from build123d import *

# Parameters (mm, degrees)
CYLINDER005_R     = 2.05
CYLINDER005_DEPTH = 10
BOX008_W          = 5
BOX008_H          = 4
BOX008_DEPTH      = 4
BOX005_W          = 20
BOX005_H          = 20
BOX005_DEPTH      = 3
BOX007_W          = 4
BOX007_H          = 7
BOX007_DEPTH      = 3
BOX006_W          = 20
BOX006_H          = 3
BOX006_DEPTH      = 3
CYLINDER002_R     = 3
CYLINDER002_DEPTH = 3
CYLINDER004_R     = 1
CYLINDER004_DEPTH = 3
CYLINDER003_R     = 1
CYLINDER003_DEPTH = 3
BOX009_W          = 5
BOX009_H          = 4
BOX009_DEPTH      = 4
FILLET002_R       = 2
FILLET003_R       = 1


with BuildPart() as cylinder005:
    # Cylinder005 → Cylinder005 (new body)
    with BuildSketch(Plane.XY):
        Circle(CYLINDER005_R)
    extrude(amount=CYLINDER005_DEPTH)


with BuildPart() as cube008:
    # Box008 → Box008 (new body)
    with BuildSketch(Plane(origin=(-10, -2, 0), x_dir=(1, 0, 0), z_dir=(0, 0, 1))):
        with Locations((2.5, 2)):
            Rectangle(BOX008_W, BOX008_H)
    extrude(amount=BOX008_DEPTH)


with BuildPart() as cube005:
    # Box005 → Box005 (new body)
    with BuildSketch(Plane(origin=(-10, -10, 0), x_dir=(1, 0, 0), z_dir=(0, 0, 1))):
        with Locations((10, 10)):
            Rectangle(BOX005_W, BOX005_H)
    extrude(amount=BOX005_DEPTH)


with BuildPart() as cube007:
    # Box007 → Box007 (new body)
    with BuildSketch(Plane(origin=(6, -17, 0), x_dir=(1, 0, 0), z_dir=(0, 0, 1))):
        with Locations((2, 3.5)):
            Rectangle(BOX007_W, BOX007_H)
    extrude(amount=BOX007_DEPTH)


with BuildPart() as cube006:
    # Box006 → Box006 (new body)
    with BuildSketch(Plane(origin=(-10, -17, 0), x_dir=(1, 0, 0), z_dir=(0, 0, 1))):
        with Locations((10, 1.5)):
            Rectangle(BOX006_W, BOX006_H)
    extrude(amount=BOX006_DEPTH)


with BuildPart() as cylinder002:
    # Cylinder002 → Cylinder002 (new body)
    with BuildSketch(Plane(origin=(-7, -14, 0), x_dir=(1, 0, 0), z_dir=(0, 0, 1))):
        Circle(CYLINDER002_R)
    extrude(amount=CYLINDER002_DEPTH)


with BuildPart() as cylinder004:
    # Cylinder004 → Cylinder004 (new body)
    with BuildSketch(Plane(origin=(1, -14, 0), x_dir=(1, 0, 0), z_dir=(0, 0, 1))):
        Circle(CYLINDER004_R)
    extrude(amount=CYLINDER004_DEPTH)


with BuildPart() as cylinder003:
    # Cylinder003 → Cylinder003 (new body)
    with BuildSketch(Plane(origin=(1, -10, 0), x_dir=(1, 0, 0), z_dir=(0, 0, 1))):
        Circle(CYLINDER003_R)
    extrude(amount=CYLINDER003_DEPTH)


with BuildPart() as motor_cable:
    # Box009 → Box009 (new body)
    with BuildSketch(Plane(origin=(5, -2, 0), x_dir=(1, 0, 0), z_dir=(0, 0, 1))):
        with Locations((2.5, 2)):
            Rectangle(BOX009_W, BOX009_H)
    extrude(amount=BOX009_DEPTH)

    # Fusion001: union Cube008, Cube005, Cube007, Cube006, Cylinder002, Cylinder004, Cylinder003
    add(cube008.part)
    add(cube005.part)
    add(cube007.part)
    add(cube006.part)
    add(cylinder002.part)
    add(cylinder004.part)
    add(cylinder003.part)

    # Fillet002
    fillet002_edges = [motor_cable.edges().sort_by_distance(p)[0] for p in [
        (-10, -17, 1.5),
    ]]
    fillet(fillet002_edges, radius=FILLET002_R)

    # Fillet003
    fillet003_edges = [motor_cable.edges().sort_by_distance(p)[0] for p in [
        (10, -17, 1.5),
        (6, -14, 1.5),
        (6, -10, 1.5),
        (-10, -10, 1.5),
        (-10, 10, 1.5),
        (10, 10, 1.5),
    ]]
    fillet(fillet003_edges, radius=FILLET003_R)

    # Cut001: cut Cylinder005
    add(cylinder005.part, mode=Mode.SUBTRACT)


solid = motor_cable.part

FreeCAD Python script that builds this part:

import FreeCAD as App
import Part
import Sketcher
Q = App.Units.Quantity


def edges_at(feature, points):
    """Names of the edges that pass closest to the given points."""
    edges = feature.Shape.Edges
    near = lambda p: min(range(len(edges)), key=lambda i: edges[i].distToShape(Part.Vertex(*p))[0])
    return sorted({f"Edge{near(p) + 1}" for p in points})


def add_polygon(sketch, points):
    """Adds a closed chain of lines whose ends are joined by coincident constraints."""
    first, n = sketch.GeometryCount, len(points)
    for a, b in zip(points, points[1:] + points[:1]):
        sketch.addGeometry(Part.LineSegment(App.Vector(*a, 0), App.Vector(*b, 0)), False)
    for i in range(n):
        sketch.addConstraint(Sketcher.Constraint("Coincident", first + i, 2, first + (i + 1) % n, 1))

doc = App.newDocument("Part")
body = doc.addObject("PartDesign::Body", "Body")

sketch1 = body.newObject("Sketcher::SketchObject", "Sketch")
sketch1.AttachmentSupport = (doc.getObject("XY_Plane"), [""])
sketch1.MapMode = "FlatFace"
sketch1.addGeometry(Part.Circle(App.Vector(0, 0, 0), App.Vector(0, 0, 1), 2), False)
sketch1.addConstraint([
    Sketcher.Constraint("Coincident", 0, 3, -1, 1),
    Sketcher.Constraint("Diameter", 0, Q("4.1 mm")),
])
pad1 = body.newObject("PartDesign::Pad", "Pad")
pad1.Profile = sketch1
pad1.Length = 10
body2 = doc.addObject("PartDesign::Body", "Body001")

sketch2 = body2.newObject("Sketcher::SketchObject", "Sketch001")
sketch2.AttachmentSupport = (doc.getObject("XY_Plane001"), [""])
sketch2.MapMode = "FlatFace"
add_polygon(sketch2, [(-10, 2), (-10, -2), (-5, -2), (-5, 2)])
sketch2.addConstraint([
    Sketcher.Constraint("Vertical", 0),
    Sketcher.Constraint("Horizontal", 1),
    Sketcher.Constraint("Vertical", 2),
    Sketcher.Constraint("Horizontal", 3),
    Sketcher.Constraint("DistanceX", 1, 1, 1, 2, Q("5 mm")),
    Sketcher.Constraint("DistanceY", 0, 2, 0, 1, Q("4 mm")),
    Sketcher.Constraint("DistanceX", 0, 2, -1, 1, Q("10 mm")),
    Sketcher.Constraint("DistanceY", 0, 2, -1, 1, Q("2 mm")),
])
pad2 = body2.newObject("PartDesign::Pad", "Pad001")
pad2.Profile = sketch2
pad2.Length = 4
body3 = doc.addObject("PartDesign::Body", "Body002")

sketch3 = body3.newObject("Sketcher::SketchObject", "Sketch002")
sketch3.AttachmentSupport = (doc.getObject("XY_Plane002"), [""])
sketch3.MapMode = "FlatFace"
add_polygon(sketch3, [(-10, 10), (-10, -10), (10, -10), (10, 10)])
sketch3.addConstraint([
    Sketcher.Constraint("Vertical", 0),
    Sketcher.Constraint("Horizontal", 1),
    Sketcher.Constraint("Vertical", 2),
    Sketcher.Constraint("Horizontal", 3),
    Sketcher.Constraint("Symmetric", 0, 2, 2, 2, -1, 1),
    Sketcher.Constraint("Equal", 3, 0),
    Sketcher.Constraint("DistanceX", 1, 1, 1, 2, Q("20 mm")),
])
pad3 = body3.newObject("PartDesign::Pad", "Pad002")
pad3.Profile = sketch3
pad3.Length = 3
body4 = doc.addObject("PartDesign::Body", "Body003")

sketch4 = body4.newObject("Sketcher::SketchObject", "Sketch003")
sketch4.AttachmentSupport = (doc.getObject("XY_Plane003"), [""])
sketch4.MapMode = "FlatFace"
add_polygon(sketch4, [(6, -10), (6, -17), (10, -17), (10, -10)])
sketch4.addConstraint([
    Sketcher.Constraint("Vertical", 0),
    Sketcher.Constraint("Horizontal", 1),
    Sketcher.Constraint("Vertical", 2),
    Sketcher.Constraint("Horizontal", 3),
    Sketcher.Constraint("DistanceX", 1, 1, 1, 2, Q("4 mm")),
    Sketcher.Constraint("DistanceY", 0, 2, 0, 1, Q("7 mm")),
    Sketcher.Constraint("DistanceX", -1, 1, 0, 2, Q("6 mm")),
    Sketcher.Constraint("DistanceY", 0, 2, -1, 1, Q("17 mm")),
])
pad4 = body4.newObject("PartDesign::Pad", "Pad003")
pad4.Profile = sketch4
pad4.Length = 3
body5 = doc.addObject("PartDesign::Body", "Body004")

sketch5 = body5.newObject("Sketcher::SketchObject", "Sketch004")
sketch5.AttachmentSupport = (doc.getObject("XY_Plane004"), [""])
sketch5.MapMode = "FlatFace"
add_polygon(sketch5, [(-10, -14), (-10, -17), (10, -17), (10, -14)])
sketch5.addConstraint([
    Sketcher.Constraint("Vertical", 0),
    Sketcher.Constraint("Horizontal", 1),
    Sketcher.Constraint("Vertical", 2),
    Sketcher.Constraint("Horizontal", 3),
    Sketcher.Constraint("DistanceX", 1, 1, 1, 2, Q("20 mm")),
    Sketcher.Constraint("DistanceY", 0, 2, 0, 1, Q("3 mm")),
    Sketcher.Constraint("DistanceX", 0, 2, -1, 1, Q("10 mm")),
    Sketcher.Constraint("DistanceY", 0, 2, -1, 1, Q("17 mm")),
])
pad5 = body5.newObject("PartDesign::Pad", "Pad004")
pad5.Profile = sketch5
pad5.Length = 3
body6 = doc.addObject("PartDesign::Body", "Body005")

sketch6 = body6.newObject("Sketcher::SketchObject", "Sketch005")
sketch6.AttachmentSupport = (doc.getObject("XY_Plane005"), [""])
sketch6.MapMode = "FlatFace"
sketch6.addGeometry(Part.Circle(App.Vector(-7, -14, 0), App.Vector(0, 0, 1), 3), False)
sketch6.addConstraint([
    Sketcher.Constraint("Diameter", 0, Q("6 mm")),
    Sketcher.Constraint("DistanceX", 0, 3, -1, 1, Q("7 mm")),
    Sketcher.Constraint("DistanceY", 0, 3, -1, 1, Q("14 mm")),
])
pad6 = body6.newObject("PartDesign::Pad", "Pad005")
pad6.Profile = sketch6
pad6.Length = 3
body7 = doc.addObject("PartDesign::Body", "Body006")

sketch7 = body7.newObject("Sketcher::SketchObject", "Sketch006")
sketch7.AttachmentSupport = (doc.getObject("XY_Plane006"), [""])
sketch7.MapMode = "FlatFace"
sketch7.addGeometry(Part.Circle(App.Vector(1, -14, 0), App.Vector(0, 0, 1), 1), False)
sketch7.addConstraint([
    Sketcher.Constraint("Diameter", 0, Q("2 mm")),
    Sketcher.Constraint("DistanceX", -1, 1, 0, 3, Q("1 mm")),
    Sketcher.Constraint("DistanceY", 0, 3, -1, 1, Q("14 mm")),
])
pad7 = body7.newObject("PartDesign::Pad", "Pad006")
pad7.Profile = sketch7
pad7.Length = 3
body8 = doc.addObject("PartDesign::Body", "Body007")

sketch8 = body8.newObject("Sketcher::SketchObject", "Sketch007")
sketch8.AttachmentSupport = (doc.getObject("XY_Plane007"), [""])
sketch8.MapMode = "FlatFace"
sketch8.addGeometry(Part.Circle(App.Vector(1, -10, 0), App.Vector(0, 0, 1), 1), False)
sketch8.addConstraint([
    Sketcher.Constraint("Diameter", 0, Q("2 mm")),
    Sketcher.Constraint("DistanceX", -1, 1, 0, 3, Q("1 mm")),
    Sketcher.Constraint("DistanceY", 0, 3, -1, 1, Q("10 mm")),
])
pad8 = body8.newObject("PartDesign::Pad", "Pad007")
pad8.Profile = sketch8
pad8.Length = 3
body9 = doc.addObject("PartDesign::Body", "Body008")
body9.AllowCompound = True

sketch9 = body9.newObject("Sketcher::SketchObject", "Sketch008")
sketch9.AttachmentSupport = (doc.getObject("XY_Plane008"), [""])
sketch9.MapMode = "FlatFace"
add_polygon(sketch9, [(5, 2), (5, -2), (10, -2), (10, 2)])
sketch9.addConstraint([
    Sketcher.Constraint("Vertical", 0),
    Sketcher.Constraint("Horizontal", 1),
    Sketcher.Constraint("Vertical", 2),
    Sketcher.Constraint("Horizontal", 3),
    Sketcher.Constraint("DistanceX", 1, 1, 1, 2, Q("5 mm")),
    Sketcher.Constraint("DistanceY", 0, 2, 0, 1, Q("4 mm")),
    Sketcher.Constraint("DistanceX", -1, 1, 0, 2, Q("5 mm")),
    Sketcher.Constraint("DistanceY", 0, 2, -1, 1, Q("2 mm")),
])
pad9 = body9.newObject("PartDesign::Pad", "Pad008")
pad9.Profile = sketch9
pad9.Length = 4
doc.recompute()

boolean = body9.newObject("PartDesign::Boolean", "Boolean")
boolean.Type = "Fuse"
boolean.addObjects([body2])
doc.recompute()

boolean2 = body9.newObject("PartDesign::Boolean", "Boolean001")
boolean2.Type = "Fuse"
boolean2.addObjects([body3])
doc.recompute()

boolean3 = body9.newObject("PartDesign::Boolean", "Boolean002")
boolean3.Type = "Fuse"
boolean3.addObjects([body4])
doc.recompute()

boolean4 = body9.newObject("PartDesign::Boolean", "Boolean003")
boolean4.Type = "Fuse"
boolean4.addObjects([body5])
doc.recompute()

boolean5 = body9.newObject("PartDesign::Boolean", "Boolean004")
boolean5.Type = "Fuse"
boolean5.addObjects([body6])
doc.recompute()

boolean6 = body9.newObject("PartDesign::Boolean", "Boolean005")
boolean6.Type = "Fuse"
boolean6.addObjects([body7])
doc.recompute()

boolean7 = body9.newObject("PartDesign::Boolean", "Boolean006")
boolean7.Type = "Fuse"
boolean7.addObjects([body8])
doc.recompute()

fillet = body9.newObject("PartDesign::Fillet", "Fillet")
fillet.Base = (boolean7, edges_at(boolean7, [(-10, -17, 1.5)]))
fillet.Radius = 2
doc.recompute()

fillet2 = body9.newObject("PartDesign::Fillet", "Fillet001")
fillet2.Base = (fillet, edges_at(fillet, [
    (10, -17, 1.5),
    (6, -14, 1.5),
    (6, -10, 1.5),
    (-10, -10, 1.5),
    (-10, 10, 1.5),
    (10, 10, 1.5),
]))
fillet2.Radius = 1
doc.recompute()

boolean8 = body9.newObject("PartDesign::Boolean", "Boolean007")
boolean8.Type = "Cut"
boolean8.addObjects([body])

doc.recompute()
